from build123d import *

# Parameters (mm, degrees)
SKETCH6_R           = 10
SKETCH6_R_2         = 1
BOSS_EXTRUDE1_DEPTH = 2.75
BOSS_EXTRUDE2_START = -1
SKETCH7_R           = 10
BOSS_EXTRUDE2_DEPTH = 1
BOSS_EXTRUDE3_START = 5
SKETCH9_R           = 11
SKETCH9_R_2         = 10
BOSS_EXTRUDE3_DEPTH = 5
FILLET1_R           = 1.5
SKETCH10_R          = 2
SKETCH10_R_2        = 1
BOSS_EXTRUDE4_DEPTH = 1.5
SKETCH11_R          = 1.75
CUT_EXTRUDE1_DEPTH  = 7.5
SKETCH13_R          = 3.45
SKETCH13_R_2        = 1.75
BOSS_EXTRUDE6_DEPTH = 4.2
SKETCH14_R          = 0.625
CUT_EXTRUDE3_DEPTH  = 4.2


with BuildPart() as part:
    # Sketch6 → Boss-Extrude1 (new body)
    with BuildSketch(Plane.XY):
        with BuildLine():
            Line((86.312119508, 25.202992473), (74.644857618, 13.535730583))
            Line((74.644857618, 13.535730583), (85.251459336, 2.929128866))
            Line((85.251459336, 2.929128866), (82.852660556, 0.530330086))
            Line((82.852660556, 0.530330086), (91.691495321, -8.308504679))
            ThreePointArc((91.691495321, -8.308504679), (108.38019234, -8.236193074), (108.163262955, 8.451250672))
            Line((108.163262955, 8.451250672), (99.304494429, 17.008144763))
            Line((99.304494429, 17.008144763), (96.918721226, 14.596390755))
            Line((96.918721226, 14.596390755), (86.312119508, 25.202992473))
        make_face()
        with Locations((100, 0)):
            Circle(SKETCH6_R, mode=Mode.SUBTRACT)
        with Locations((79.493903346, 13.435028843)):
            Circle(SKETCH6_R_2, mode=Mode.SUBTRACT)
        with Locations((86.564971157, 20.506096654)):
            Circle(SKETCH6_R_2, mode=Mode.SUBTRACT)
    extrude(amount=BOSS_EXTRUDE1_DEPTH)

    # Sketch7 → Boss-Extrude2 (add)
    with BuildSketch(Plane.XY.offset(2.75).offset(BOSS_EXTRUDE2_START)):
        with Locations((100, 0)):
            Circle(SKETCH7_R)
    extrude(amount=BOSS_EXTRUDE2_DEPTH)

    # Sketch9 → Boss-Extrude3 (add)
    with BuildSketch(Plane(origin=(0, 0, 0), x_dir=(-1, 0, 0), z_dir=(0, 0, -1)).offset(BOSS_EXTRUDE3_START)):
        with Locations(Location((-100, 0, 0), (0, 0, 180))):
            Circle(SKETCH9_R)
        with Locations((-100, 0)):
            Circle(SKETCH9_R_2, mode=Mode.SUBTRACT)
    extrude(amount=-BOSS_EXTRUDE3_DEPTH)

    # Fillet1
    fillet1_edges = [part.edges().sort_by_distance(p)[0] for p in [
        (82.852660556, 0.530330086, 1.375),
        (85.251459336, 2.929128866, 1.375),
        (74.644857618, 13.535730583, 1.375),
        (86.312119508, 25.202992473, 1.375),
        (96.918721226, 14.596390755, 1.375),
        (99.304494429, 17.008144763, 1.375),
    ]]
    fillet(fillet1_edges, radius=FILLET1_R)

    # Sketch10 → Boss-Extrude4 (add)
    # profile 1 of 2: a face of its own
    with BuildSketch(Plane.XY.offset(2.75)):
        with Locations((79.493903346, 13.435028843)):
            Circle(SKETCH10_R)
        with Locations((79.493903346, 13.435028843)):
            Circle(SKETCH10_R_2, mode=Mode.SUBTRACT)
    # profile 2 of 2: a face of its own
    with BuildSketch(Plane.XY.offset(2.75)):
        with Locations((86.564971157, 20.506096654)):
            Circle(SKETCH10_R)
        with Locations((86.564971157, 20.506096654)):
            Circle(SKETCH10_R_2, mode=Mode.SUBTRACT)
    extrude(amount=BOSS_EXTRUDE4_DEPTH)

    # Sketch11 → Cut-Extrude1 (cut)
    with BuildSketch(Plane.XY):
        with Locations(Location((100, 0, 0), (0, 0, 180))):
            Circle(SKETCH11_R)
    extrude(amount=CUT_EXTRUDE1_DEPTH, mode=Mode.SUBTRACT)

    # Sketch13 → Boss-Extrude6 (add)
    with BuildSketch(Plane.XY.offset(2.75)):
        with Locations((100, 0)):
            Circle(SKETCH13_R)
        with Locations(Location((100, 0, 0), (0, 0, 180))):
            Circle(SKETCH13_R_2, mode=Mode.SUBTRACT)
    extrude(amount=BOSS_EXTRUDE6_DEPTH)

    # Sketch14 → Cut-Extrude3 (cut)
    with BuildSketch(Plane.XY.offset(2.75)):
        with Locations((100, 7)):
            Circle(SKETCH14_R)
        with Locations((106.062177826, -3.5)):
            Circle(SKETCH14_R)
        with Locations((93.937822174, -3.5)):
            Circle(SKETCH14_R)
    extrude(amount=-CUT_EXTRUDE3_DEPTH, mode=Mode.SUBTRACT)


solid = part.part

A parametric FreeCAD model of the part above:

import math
import FreeCAD as App
import Part
import Sketcher
Q = App.Units.Quantity


def edges_at(feature, points):
    """Names of the edges that pass closest to the given points."""
    edges = feature.Shape.Edges
    near = lambda p: min(range(len(edges)), key=lambda i: edges[i].distToShape(Part.Vertex(*p))[0])
    return sorted({f"Edge{near(p) + 1}" for p in points})

doc = App.newDocument("Part")
body = doc.addObject("PartDesign::Body", "Body")

sketch1 = body.newObject("Sketcher::SketchObject", "Sketch")
sketch1.AttachmentSupport = (doc.getObject("XY_Plane"), [""])
sketch1.MapMode = "FlatFace"
sketch1.addGeometry([
    Part.LineSegment(App.Vector(86.31212, 25.202992, 0), App.Vector(74.644858, 13.535731, 0)),
    Part.LineSegment(App.Vector(74.644858, 13.535731, 0), App.Vector(85.251459, 2.929129, 0)),
    Part.LineSegment(App.Vector(85.251459, 2.929129, 0), App.Vector(82.852661, 0.53033, 0)),
    Part.LineSegment(App.Vector(82.852661, 0.53033, 0), App.Vector(91.691495, -8.308505, 0)),
    Part.ArcOfCircle(Part.Circle(App.Vector(100, 0, 0), App.Vector(0, 0, 1), 11.75), math.radians(-135), math.radians(45.993037)),
    Part.LineSegment(App.Vector(108.163263, 8.451251, 0), App.Vector(99.304494, 17.008145, 0)),
    Part.LineSegment(App.Vector(99.304494, 17.008145, 0), App.Vector(96.918721, 14.596391, 0)),
    Part.LineSegment(App.Vector(96.918721, 14.596391, 0), App.Vector(86.31212, 25.202992, 0)),
    Part.Circle(App.Vector(100, 0, 0), App.Vector(0, 0, 1), 10),
    Part.Circle(App.Vector(79.493903, 13.435029, 0), App.Vector(0, 0, 1), 1),
    Part.Circle(App.Vector(86.564971, 20.506097, 0), App.Vector(0, 0, 1), 1),
], False)
sketch1.addConstraint([
    Sketcher.Constraint("Coincident", 0, 2, 1, 1),
    Sketcher.Constraint("Coincident", 1, 2, 2, 1),
    Sketcher.Constraint("Coincident", 2, 2, 3, 1),
    Sketcher.Constraint("Tangent", 3, 2, 4, 1),
    Sketcher.Constraint("Tangent", 4, 2, 5, 1),
    Sketcher.Constraint("Coincident", 5, 2, 6, 1),
    Sketcher.Constraint("Coincident", 6, 2, 7, 1),
    Sketcher.Constraint("Coincident", 7, 2, 0, 1),
    Sketcher.Constraint("Coincident", 8, 3, 4, 3),
    Sketcher.Constraint("Equal", 9, 10),
    Sketcher.Constraint("PointOnObject", 4, 3, -1),
    Sketcher.Constraint("Perpendicular", 0, 1),
    Sketcher.Constraint("Perpendicular", 1, 2),
    Sketcher.Constraint("Perpendicular", 2, 3),
    Sketcher.Constraint("Parallel", 3, 7),
    Sketcher.Constraint("Equal", 2, 6),
    Sketcher.Constraint("Equal", 1, 7),
    Sketcher.Constraint("Diameter", 8, Q("20 mm")),
    Sketcher.Constraint("Diameter", 9, Q("2 mm")),
    Sketcher.Constraint("Angle", 0, Q("-135 deg")),
    Sketcher.Constraint("Radius", 4, Q("11.75 mm")),
    Sketcher.Constraint("Distance", 1, Q("15 mm")),
    Sketcher.Constraint("DistanceX", -1, 1, 4, 3, Q("100 mm")),
    Sketcher.Constraint("Distance", 0, Q("16.5 mm")),
    Sketcher.Constraint("Distance", 3, Q("12.5 mm")),
    Sketcher.Constraint("DistanceY", 9, 3, 0, 2, Q("0.100702 mm")),
    Sketcher.Constraint("DistanceX", 2, 2, 1, 2, Q("2.398799 mm")),
    Sketcher.Constraint("DistanceX", -1, 1, 10, 3, Q("86.564971 mm")),
    Sketcher.Constraint("DistanceX", 9, 3, 3, 2, Q("12.197592 mm")),
    Sketcher.Constraint("DistanceX", 5, 2, 4, 2, Q("8.858769 mm")),
    Sketcher.Constraint("DistanceY", 5, 2, 10, 3, Q("3.497952 mm")),
])
pad1 = body.newObject("PartDesign::Pad", "Pad")
pad1.Profile = sketch1
pad1.Length = 2.75

sketch2 = body.newObject("Sketcher::SketchObject", "Sketch001")
sketch2.AttachmentSupport = (doc.getObject("XY_Plane"), [""])
sketch2.MapMode = "FlatFace"
sketch2.AttachmentOffset = App.Placement(App.Vector(0, 0, 1.75), App.Rotation())
sketch2.addGeometry(Part.Circle(App.Vector(100, 0, 0), App.Vector(0, 0, 1), 10), False)
sketch2.addConstraint([
    Sketcher.Constraint("PointOnObject", 0, 3, -1),
    Sketcher.Constraint("Diameter", 0, Q("20 mm")),
    Sketcher.Constraint("DistanceX", -1, 1, 0, 3, Q("100 mm")),
])
pad2 = body.newObject("PartDesign::Pad", "Pad001")
pad2.Profile = sketch2
pad2.Length = 1

sketch3 = body.newObject("Sketcher::SketchObject", "Sketch002")
sketch3.AttachmentSupport = (doc.getObject("XY_Plane"), [""])
sketch3.MapMode = "FlatFace"
sketch3.AttachmentOffset = App.Placement(App.Vector(0, 0, -5), App.Rotation())
sketch3.addGeometry([
    Part.Circle(App.Vector(100, 0, 0), App.Vector(0, 0, 1), 11),
    Part.Circle(App.Vector(100, 0, 0), App.Vector(0, 0, 1), 10),
], False)
sketch3.addConstraint([
    Sketcher.Constraint("Coincident", 1, 3, 0, 3),
    Sketcher.Constraint("PointOnObject", 0, 3, -1),
    Sketcher.Constraint("Diameter", 0, Q("22 mm")),
    Sketcher.Constraint("Diameter", 1, Q("20 mm")),
    Sketcher.Constraint("DistanceX", -1, 1, 0, 3, Q("100 mm")),
])
pad3 = body.newObject("PartDesign::Pad", "Pad002")
pad3.Profile = sketch3
pad3.Length = 5
doc.recompute()

fillet = body.newObject("PartDesign::Fillet", "Fillet")
fillet.Base = (pad3, edges_at(pad3, [
    (82.853, 0.53, 1.375),
    (85.251, 2.929, 1.375),
    (74.645, 13.536, 1.375),
    (86.312, 25.203, 1.375),
    (96.919, 14.596, 1.375),
    (99.304, 17.008, 1.375),
]))
fillet.Radius = 1.5

sketch4 = body.newObject("Sketcher::SketchObject", "Sketch003")
sketch4.AttachmentSupport = (doc.getObject("XY_Plane"), [""])
sketch4.MapMode = "FlatFace"
sketch4.AttachmentOffset = App.Placement(App.Vector(0, 0, 2.75), App.Rotation())
sketch4.addGeometry([
    Part.Circle(App.Vector(79.493903, 13.435029, 0), App.Vector(0, 0, 1), 2),
    Part.Circle(App.Vector(79.493903, 13.435029, 0), App.Vector(0, 0, 1), 1),
    Part.Circle(App.Vector(86.564971, 20.506097, 0), App.Vector(0, 0, 1), 2),
    Part.Circle(App.Vector(86.564971, 20.506097, 0), App.Vector(0, 0, 1), 1),
], False)
sketch4.addConstraint([
    Sketcher.Constraint("Coincident", 1, 3, 0, 3),
    Sketcher.Constraint("Coincident", 3, 3, 2, 3),
    Sketcher.Constraint("Equal", 0, 2),
    Sketcher.Constraint("Equal", 1, 3),
    Sketcher.Constraint("Diameter", 0, Q("4 mm")),
    Sketcher.Constraint("Diameter", 1, Q("2 mm")),
    Sketcher.Constraint("DistanceY", -1, 1, 0, 3, Q("13.435029 mm")),
    Sketcher.Constraint("DistanceX", -1, 1, 2, 3, Q("86.564971 mm")),
    Sketcher.Constraint("DistanceX", -1, 1, 0, 3, Q("79.493903 mm")),
    Sketcher.Constraint("DistanceY", -1, 1, 2, 3, Q("20.506097 mm")),
])
pad4 = body.newObject("PartDesign::Pad", "Pad003")
pad4.Profile = sketch4
pad4.Length = 1.5

sketch5 = body.newObject("Sketcher::SketchObject", "Sketch004")
sketch5.AttachmentSupport = (doc.getObject("XY_Plane"), [""])
sketch5.MapMode = "FlatFace"
sketch5.addGeometry(Part.Circle(App.Vector(100, 0, 0), App.Vector(0, 0, 1), 1.75), False)
sketch5.addConstraint([
    Sketcher.Constraint("PointOnObject", 0, 3, -1),
    Sketcher.Constraint("Diameter", 0, Q("3.5 mm")),
    Sketcher.Constraint("DistanceX", -1, 1, 0, 3, Q("100 mm")),
])
pocket1 = body.newObject("PartDesign::Pocket", "Pocket")
pocket1.Profile = sketch5
pocket1.Length = 7.5
pocket1.Reversed = True

sketch6 = body.newObject("Sketcher::SketchObject", "Sketch005")
sketch6.AttachmentSupport = (doc.getObject("XY_Plane"), [""])
sketch6.MapMode = "FlatFace"
sketch6.AttachmentOffset = App.Placement(App.Vector(0, 0, 2.75), App.Rotation())
sketch6.addGeometry([
    Part.Circle(App.Vector(100, 0, 0), App.Vector(0, 0, 1), 3.45),
    Part.Circle(App.Vector(100, 0, 0), App.Vector(0, 0, 1), 1.75),
], False)
sketch6.addConstraint([
    Sketcher.Constraint("Coincident", 1, 3, 0, 3),
    Sketcher.Constraint("PointOnObject", 0, 3, -1),
    Sketcher.Constraint("Diameter", 0, Q("6.9 mm")),
    Sketcher.Constraint("Diameter", 1, Q("3.5 mm")),
    Sketcher.Constraint("DistanceX", -1, 1, 0, 3, Q("100 mm")),
])
pad5 = body.newObject("PartDesign::Pad", "Pad004")
pad5.Profile = sketch6
pad5.Length = 4.2

sketch7 = body.newObject("Sketcher::SketchObject", "Sketch006")
sketch7.AttachmentSupport = (doc.getObject("XY_Plane"), [""])
sketch7.MapMode = "FlatFace"
sketch7.AttachmentOffset = App.Placement(App.Vector(0, 0, 2.75), App.Rotation())
sketch7.addGeometry([
    Part.Circle(App.Vector(100, 7, 0), App.Vector(0, 0, 1), 0.625),
    Part.Circle(App.Vector(106.062178, -3.5, 0), App.Vector(0, 0, 1), 0.625),
    Part.Circle(App.Vector(93.937822, -3.5, 0), App.Vector(0, 0, 1), 0.625),
], False)
sketch7.addConstraint([
    Sketcher.Constraint("Equal", 0, 1),
    Sketcher.Constraint("Equal", 1, 2),
    Sketcher.Constraint("Horizontal", 1, 3, 2, 3),
    Sketcher.Constraint("Diameter", 0, Q("1.25 mm")),
    Sketcher.Constraint("DistanceX", -1, 1, 0, 3, Q("100 mm")),
    Sketcher.Constraint("DistanceY", -1, 1, 0, 3, Q("7 mm")),
    Sketcher.Constraint("DistanceY", 1, 3, -1, 1, Q("3.5 mm")),
    Sketcher.Constraint("DistanceX", -1, 1, 1, 3, Q("106.062178 mm")),
    Sketcher.Constraint("DistanceX", -1, 1, 2, 3, Q("93.937822 mm")),
])
pocket2 = body.newObject("PartDesign::Pocket", "Pocket001")
pocket2.Profile = sketch7
pocket2.Length = 4.2

doc.recompute()
